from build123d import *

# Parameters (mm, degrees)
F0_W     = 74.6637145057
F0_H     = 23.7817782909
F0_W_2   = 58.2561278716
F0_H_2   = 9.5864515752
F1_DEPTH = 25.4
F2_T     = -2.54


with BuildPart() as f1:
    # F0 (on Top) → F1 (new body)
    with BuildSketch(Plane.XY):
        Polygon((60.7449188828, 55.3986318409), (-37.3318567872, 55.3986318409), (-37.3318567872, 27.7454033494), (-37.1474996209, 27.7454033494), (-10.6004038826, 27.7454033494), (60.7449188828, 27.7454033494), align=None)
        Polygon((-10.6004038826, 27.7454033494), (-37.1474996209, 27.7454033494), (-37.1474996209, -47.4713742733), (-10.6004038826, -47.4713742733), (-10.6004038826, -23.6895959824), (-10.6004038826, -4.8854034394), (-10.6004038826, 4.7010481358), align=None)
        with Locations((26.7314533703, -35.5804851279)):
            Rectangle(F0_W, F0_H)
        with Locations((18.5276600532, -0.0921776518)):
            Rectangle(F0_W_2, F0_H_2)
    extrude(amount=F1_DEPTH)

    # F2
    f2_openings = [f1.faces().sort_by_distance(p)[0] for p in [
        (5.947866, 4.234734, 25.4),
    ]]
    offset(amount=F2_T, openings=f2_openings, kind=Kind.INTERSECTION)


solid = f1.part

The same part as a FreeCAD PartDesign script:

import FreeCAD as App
import Part
import Sketcher
from FreeCAD import Vector
Q = App.Units.Quantity


def faces_at(feature, points):
    """Names of the faces that lie closest to the given points."""
    faces = feature.Shape.Faces
    near = lambda p: min(range(len(faces)), key=lambda i: faces[i].distToShape(Part.Vertex(*p))[0])
    return sorted({f"Face{near(p) + 1}" for p in points})

doc = App.newDocument("Part")
body = doc.addObject("PartDesign::Body", "Body")

sketch1 = doc.addObject("Sketcher::SketchObject", "Sketch")
body.addObject(sketch1)
sketch1.AttachmentSupport = (doc.XY_Plane, [""])
sketch1.MapMode = "FlatFace"
sketch1.addGeometry([
    Part.LineSegment(Vector(60.744919, 55.398632, 0), Vector(-37.331857, 55.398632, 0)),
    Part.LineSegment(Vector(-37.331857, 55.398632, 0), Vector(-37.331857, 27.745403, 0)),
    Part.LineSegment(Vector(-37.331857, 27.745403, 0), Vector(-37.1475, 27.745403, 0)),
    Part.LineSegment(Vector(-37.1475, 27.745403, 0), Vector(-37.1475, -47.471374, 0)),
    Part.LineSegment(Vector(-37.1475, -47.471374, 0), Vector(64.063311, -47.471374, 0)),
    Part.LineSegment(Vector(64.063311, -47.471374, 0), Vector(64.063311, -23.689596, 0)),
    Part.LineSegment(Vector(64.063311, -23.689596, 0), Vector(-10.600404, -23.689596, 0)),
    Part.LineSegment(Vector(-10.600404, -23.689596, 0), Vector(-10.600404, -4.885403, 0)),
    Part.LineSegment(Vector(-10.600404, -4.885403, 0), Vector(47.655724, -4.885403, 0)),
    Part.LineSegment(Vector(47.655724, -4.885403, 0), Vector(47.655724, 4.701048, 0)),
    Part.LineSegment(Vector(47.655724, 4.701048, 0), Vector(-10.600404, 4.701048, 0)),
    Part.LineSegment(Vector(-10.600404, 4.701048, 0), Vector(-10.600404, 27.745403, 0)),
    Part.LineSegment(Vector(-10.600404, 27.745403, 0), Vector(60.744919, 27.745403, 0)),
    Part.LineSegment(Vector(60.744919, 27.745403, 0), Vector(60.744919, 55.398632, 0)),
], False)
sketch1.addConstraint([
    Sketcher.Constraint("Coincident", 0, 2, 1, 1),
    Sketcher.Constraint("Coincident", 1, 2, 2, 1),
    Sketcher.Constraint("Coincident", 2, 2, 3, 1),
    Sketcher.Constraint("Coincident", 3, 2, 4, 1),
    Sketcher.Constraint("Coincident", 4, 2, 5, 1),
    Sketcher.Constraint("Coincident", 5, 2, 6, 1),
    Sketcher.Constraint("Coincident", 6, 2, 7, 1),
    Sketcher.Constraint("Coincident", 7, 2, 8, 1),
    Sketcher.Constraint("Coincident", 8, 2, 9, 1),
    Sketcher.Constraint("Coincident", 9, 2, 10, 1),
    Sketcher.Constraint("Coincident", 10, 2, 11, 1),
    Sketcher.Constraint("Coincident", 11, 2, 12, 1),
    Sketcher.Constraint("Coincident", 12, 2, 13, 1),
    Sketcher.Constraint("Coincident", 13, 2, 0, 1),
    Sketcher.Constraint("Horizontal", 0),
    Sketcher.Constraint("Vertical", 1),
    Sketcher.Constraint("Horizontal", 2),
    Sketcher.Constraint("Vertical", 3),
    Sketcher.Constraint("Horizontal", 4),
    Sketcher.Constraint("Vertical", 5),
    Sketcher.Constraint("Horizontal", 6),
    Sketcher.Constraint("Vertical", 7),
    Sketcher.Constraint("Horizontal", 8),
    Sketcher.Constraint("Vertical", 9),
    Sketcher.Constraint("Horizontal", 10),
    Sketcher.Constraint("Vertical", 11),
    Sketcher.Constraint("Horizontal", 12),
    Sketcher.Constraint("Vertical", 13),
    Sketcher.Constraint("Horizontal", 2, 2, 11, 2),
    Sketcher.Constraint("Vertical", 7, 2, 10, 2),
    Sketcher.Constraint("DistanceY", 5, 2, 2, 2, Q("2.025 in")),
    Sketcher.Constraint("DistanceX", 2, 2, -1, 1, Q("1.4625 in")),
    Sketcher.Constraint("DistanceX", 4, 1, 4, 2, Q("101.21081 mm")),
    Sketcher.Constraint("DistanceY", 1, 2, 1, 1, Q("27.653228 mm")),
    Sketcher.Constraint("DistanceY", 5, 1, 5, 2, Q("23.781778 mm")),
    Sketcher.Constraint("DistanceY", 9, 1, 9, 2, Q("9.586452 mm")),
    Sketcher.Constraint("DistanceX", 0, 2, 0, 1, Q("98.076776 mm")),
    Sketcher.Constraint("DistanceX", 2, 1, 2, 2, Q("0.184357 mm")),
    Sketcher.Constraint("DistanceX", 6, 2, 6, 1, Q("74.663715 mm")),
    Sketcher.Constraint("DistanceX", 8, 1, 8, 2, Q("58.256128 mm")),
    Sketcher.Constraint("DistanceY", 7, 1, 7, 2, Q("18.804193 mm")),
    Sketcher.Constraint("DistanceY", -1, 1, 0, 2, Q("55.398632 mm")),
])
pad1 = doc.addObject("PartDesign::Pad", "Pad")
body.addObject(pad1)
pad1.Profile = sketch1
pad1.Length = Q("1 in")
doc.recompute()

thickness = doc.addObject("PartDesign::Thickness", "Thickness")
body.addObject(thickness)
thickness.Base = (pad1, faces_at(pad1, [(13.366, 3.964, 25.4)]))
thickness.Value = Q("0.1 in")
thickness.Reversed = True
thickness.Join = "Intersection"

doc.recompute()
